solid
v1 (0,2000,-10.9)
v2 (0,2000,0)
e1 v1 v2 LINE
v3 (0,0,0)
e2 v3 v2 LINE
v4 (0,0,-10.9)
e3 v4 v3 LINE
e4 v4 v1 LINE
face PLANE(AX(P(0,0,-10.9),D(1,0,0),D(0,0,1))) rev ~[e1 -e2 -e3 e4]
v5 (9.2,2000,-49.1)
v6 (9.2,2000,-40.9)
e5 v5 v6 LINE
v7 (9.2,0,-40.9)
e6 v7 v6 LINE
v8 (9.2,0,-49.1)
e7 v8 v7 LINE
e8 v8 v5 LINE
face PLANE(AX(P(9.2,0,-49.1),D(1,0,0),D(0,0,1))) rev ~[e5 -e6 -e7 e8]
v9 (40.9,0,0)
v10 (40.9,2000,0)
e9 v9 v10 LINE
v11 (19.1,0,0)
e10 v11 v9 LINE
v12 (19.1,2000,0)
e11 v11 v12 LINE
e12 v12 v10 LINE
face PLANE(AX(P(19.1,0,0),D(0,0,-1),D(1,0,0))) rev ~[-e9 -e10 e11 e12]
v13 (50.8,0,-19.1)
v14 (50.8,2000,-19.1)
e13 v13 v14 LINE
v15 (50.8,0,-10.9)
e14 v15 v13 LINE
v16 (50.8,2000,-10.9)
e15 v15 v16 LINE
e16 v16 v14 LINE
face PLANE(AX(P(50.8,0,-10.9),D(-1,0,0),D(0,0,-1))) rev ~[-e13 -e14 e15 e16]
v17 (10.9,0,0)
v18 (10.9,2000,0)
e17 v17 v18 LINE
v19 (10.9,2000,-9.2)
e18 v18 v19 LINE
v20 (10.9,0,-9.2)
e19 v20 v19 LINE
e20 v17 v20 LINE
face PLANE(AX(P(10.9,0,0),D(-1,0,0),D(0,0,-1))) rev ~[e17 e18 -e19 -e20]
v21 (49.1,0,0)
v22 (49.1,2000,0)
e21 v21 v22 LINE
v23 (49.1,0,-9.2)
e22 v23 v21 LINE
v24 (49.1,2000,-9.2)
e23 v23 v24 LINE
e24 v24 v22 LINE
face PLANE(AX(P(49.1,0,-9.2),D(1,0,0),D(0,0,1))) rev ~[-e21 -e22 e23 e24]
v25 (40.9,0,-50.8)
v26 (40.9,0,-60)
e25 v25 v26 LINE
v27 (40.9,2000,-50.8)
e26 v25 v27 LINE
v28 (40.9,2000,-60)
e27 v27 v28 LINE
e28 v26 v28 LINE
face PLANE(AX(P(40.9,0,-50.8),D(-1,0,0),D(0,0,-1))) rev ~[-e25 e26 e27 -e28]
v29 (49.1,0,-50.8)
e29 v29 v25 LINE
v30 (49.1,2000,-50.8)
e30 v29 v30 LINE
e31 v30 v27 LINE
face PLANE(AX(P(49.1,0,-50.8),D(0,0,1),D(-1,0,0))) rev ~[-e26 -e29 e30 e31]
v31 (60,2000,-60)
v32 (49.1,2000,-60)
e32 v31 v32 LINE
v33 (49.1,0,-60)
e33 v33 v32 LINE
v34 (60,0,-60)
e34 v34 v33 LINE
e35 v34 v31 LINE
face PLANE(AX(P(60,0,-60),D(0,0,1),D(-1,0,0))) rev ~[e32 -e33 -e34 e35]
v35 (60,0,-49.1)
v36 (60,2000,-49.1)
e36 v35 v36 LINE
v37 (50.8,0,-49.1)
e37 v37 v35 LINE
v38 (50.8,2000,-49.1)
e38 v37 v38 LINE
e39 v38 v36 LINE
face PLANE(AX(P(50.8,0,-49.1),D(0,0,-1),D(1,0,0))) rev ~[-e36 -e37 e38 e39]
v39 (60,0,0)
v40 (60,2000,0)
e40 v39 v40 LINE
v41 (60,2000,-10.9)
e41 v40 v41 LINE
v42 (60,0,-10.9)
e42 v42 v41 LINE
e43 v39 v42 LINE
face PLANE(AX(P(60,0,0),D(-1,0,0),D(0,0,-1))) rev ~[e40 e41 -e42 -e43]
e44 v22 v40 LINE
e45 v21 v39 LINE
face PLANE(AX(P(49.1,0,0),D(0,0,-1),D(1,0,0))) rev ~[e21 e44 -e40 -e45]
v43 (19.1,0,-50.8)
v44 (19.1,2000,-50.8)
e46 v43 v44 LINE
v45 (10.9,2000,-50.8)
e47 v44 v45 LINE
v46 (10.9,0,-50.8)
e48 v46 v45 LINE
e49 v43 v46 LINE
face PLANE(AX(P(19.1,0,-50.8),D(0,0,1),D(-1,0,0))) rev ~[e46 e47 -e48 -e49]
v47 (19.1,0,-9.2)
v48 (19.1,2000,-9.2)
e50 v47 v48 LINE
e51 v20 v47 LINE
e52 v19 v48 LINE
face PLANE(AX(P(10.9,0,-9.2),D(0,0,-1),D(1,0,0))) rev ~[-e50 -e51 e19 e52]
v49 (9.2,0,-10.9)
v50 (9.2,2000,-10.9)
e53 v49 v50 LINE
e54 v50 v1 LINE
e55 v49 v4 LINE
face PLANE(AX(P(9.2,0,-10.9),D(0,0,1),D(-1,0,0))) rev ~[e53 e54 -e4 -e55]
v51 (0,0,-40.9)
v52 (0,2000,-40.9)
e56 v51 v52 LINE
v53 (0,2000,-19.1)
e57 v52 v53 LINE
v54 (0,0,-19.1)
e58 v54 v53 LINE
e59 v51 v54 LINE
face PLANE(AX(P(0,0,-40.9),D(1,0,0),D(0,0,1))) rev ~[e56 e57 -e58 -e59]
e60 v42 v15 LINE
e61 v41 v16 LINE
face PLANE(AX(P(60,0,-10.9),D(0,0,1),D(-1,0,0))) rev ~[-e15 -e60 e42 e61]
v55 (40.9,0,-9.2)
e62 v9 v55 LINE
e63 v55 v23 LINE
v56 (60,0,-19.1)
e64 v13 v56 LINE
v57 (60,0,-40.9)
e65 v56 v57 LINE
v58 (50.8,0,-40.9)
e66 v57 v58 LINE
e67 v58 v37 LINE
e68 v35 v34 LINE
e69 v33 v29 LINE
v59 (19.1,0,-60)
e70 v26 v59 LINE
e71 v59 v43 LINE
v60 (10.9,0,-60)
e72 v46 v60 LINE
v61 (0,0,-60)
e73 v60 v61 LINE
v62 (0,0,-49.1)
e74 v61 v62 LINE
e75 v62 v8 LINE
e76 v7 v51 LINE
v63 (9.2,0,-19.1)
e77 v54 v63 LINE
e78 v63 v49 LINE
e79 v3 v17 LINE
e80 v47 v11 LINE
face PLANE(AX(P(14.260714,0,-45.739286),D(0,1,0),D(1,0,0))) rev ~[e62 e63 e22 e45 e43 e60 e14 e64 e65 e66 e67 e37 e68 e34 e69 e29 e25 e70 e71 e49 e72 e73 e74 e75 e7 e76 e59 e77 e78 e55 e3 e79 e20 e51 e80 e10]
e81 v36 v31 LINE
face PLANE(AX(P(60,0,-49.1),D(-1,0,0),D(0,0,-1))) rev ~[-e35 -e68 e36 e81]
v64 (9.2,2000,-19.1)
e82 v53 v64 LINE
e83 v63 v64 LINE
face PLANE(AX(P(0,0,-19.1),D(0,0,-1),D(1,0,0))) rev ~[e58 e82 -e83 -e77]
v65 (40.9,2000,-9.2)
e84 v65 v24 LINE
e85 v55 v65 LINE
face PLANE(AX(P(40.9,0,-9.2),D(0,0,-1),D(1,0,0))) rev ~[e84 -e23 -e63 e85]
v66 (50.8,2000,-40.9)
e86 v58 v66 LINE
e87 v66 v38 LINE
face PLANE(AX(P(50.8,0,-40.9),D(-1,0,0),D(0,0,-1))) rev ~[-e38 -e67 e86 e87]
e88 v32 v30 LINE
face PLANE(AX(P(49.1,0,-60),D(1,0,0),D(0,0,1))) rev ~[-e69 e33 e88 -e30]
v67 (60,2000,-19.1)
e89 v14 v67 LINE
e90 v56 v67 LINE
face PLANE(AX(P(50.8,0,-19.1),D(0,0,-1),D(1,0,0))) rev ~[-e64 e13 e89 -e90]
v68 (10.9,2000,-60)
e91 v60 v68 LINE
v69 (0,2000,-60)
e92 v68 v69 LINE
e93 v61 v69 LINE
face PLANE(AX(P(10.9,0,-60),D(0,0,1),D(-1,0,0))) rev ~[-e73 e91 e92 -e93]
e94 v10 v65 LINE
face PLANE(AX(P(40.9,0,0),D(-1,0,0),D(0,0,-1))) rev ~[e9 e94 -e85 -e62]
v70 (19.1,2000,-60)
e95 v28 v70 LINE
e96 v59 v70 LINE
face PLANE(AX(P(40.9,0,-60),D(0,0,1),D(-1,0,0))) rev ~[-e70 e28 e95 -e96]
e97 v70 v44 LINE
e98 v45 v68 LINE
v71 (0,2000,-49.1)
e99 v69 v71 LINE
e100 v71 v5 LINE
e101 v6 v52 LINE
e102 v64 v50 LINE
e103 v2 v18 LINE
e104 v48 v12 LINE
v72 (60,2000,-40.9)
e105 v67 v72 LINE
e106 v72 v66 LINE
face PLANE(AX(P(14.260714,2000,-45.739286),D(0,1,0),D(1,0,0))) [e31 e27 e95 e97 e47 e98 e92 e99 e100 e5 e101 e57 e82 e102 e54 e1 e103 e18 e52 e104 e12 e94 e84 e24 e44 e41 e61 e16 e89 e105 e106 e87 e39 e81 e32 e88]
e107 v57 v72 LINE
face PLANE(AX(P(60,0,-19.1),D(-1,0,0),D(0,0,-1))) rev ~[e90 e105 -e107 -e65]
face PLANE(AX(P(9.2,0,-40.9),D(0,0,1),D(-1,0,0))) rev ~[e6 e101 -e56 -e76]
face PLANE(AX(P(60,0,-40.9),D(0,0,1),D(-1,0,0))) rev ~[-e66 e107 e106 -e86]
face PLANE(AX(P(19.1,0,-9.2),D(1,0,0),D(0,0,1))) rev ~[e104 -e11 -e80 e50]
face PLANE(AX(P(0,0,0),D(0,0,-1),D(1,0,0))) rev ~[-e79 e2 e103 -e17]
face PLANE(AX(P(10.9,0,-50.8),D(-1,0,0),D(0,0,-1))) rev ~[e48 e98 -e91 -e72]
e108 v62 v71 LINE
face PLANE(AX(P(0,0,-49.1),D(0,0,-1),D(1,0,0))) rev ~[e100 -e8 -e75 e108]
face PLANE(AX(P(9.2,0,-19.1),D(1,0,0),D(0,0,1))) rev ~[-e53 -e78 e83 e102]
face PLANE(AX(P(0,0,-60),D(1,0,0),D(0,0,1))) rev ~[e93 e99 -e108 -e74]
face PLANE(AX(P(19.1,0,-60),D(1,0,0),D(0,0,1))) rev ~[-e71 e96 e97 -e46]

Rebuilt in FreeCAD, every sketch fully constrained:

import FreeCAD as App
import Part
import Sketcher
from FreeCAD import Vector
Q = App.Units.Quantity


def add_polygon(sketch, points):
    """Adds a closed chain of lines whose ends are joined by coincident constraints."""
    first, n = sketch.GeometryCount, len(points)
    for a, b in zip(points, points[1:] + points[:1]):
        sketch.addGeometry(Part.LineSegment(App.Vector(*a, 0), App.Vector(*b, 0)), False)
    for i in range(n):
        sketch.addConstraint(Sketcher.Constraint("Coincident", first + i, 2, first + (i + 1) % n, 1))

doc = App.newDocument("Part")
body = doc.addObject("PartDesign::Body", "Body")

sketch1 = doc.addObject("Sketcher::SketchObject", "Sketch")
body.addObject(sketch1)
sketch1.AttachmentSupport = (doc.XZ_Plane, [""])
sketch1.MapMode = "FlatFace"
add_polygon(sketch1, [(11, -60), (0, -60), (0, -49), (9, -49), (9, -41), (0, -41), (0, -19), (9, -19), (9, -11), (0, -11), (0, 0), (11, 0), (11, -9), (19, -9), (19, 0), (41, 0), (41, -9), (49, -9), (49, 0), (60, 0), (60, -11), (51, -11), (51, -19), (60, -19), (60, -41), (51, -41), (51, -49), (60, -49), (60, -60), (49, -60), (49, -51), (41, -51), (41, -60), (19, -60), (19, -51), (11, -51)])
sketch1.addConstraint(Sketcher.Constraint("Horizontal", 0))
sketch1.addConstraint(Sketcher.Constraint("Vertical", 1))
sketch1.addConstraint(Sketcher.Constraint("Horizontal", 2))
sketch1.addConstraint(Sketcher.Constraint("Vertical", 3))
sketch1.addConstraint(Sketcher.Constraint("Horizontal", 4))
sketch1.addConstraint(Sketcher.Constraint("Vertical", 5))
sketch1.addConstraint(Sketcher.Constraint("Horizontal", 6))
sketch1.addConstraint(Sketcher.Constraint("Vertical", 7))
sketch1.addConstraint(Sketcher.Constraint("Horizontal", 8))
sketch1.addConstraint(Sketcher.Constraint("Vertical", 9))
sketch1.addConstraint(Sketcher.Constraint("Horizontal", 10))
sketch1.addConstraint(Sketcher.Constraint("Vertical", 11))
sketch1.addConstraint(Sketcher.Constraint("Horizontal", 12))
sketch1.addConstraint(Sketcher.Constraint("Vertical", 13))
sketch1.addConstraint(Sketcher.Constraint("Horizontal", 14))
sketch1.addConstraint(Sketcher.Constraint("Vertical", 15))
sketch1.addConstraint(Sketcher.Constraint("Horizontal", 16))
sketch1.addConstraint(Sketcher.Constraint("Vertical", 17))
sketch1.addConstraint(Sketcher.Constraint("Horizontal", 18))
sketch1.addConstraint(Sketcher.Constraint("Vertical", 19))
sketch1.addConstraint(Sketcher.Constraint("Horizontal", 20))
sketch1.addConstraint(Sketcher.Constraint("Vertical", 21))
sketch1.addConstraint(Sketcher.Constraint("Horizontal", 22))
sketch1.addConstraint(Sketcher.Constraint("Vertical", 23))
sketch1.addConstraint(Sketcher.Constraint("Horizontal", 24))
sketch1.addConstraint(Sketcher.Constraint("Vertical", 25))
sketch1.addConstraint(Sketcher.Constraint("Horizontal", 26))
sketch1.addConstraint(Sketcher.Constraint("Vertical", 27))
sketch1.addConstraint(Sketcher.Constraint("Horizontal", 28))
sketch1.addConstraint(Sketcher.Constraint("Vertical", 29))
sketch1.addConstraint(Sketcher.Constraint("Horizontal", 30))
sketch1.addConstraint(Sketcher.Constraint("Vertical", 31))
sketch1.addConstraint(Sketcher.Constraint("Horizontal", 32))
sketch1.addConstraint(Sketcher.Constraint("Vertical", 33))
sketch1.addConstraint(Sketcher.Constraint("Horizontal", 34))
sketch1.addConstraint(Sketcher.Constraint("Vertical", 35))
sketch1.addConstraint(Sketcher.Constraint("Coincident", 9, 2, -1, 1))
sketch1.addConstraint(Sketcher.Constraint("PointOnObject", 0, 2, -2))
sketch1.addConstraint(Sketcher.Constraint("PointOnObject", 4, 2, -2))
sketch1.addConstraint(Sketcher.Constraint("PointOnObject", 13, 2, -1))
sketch1.addConstraint(Sketcher.Constraint("PointOnObject", 17, 2, -1))
sketch1.addConstraint(Sketcher.Constraint("Horizontal", 12, 2, 15, 2))
sketch1.addConstraint(Sketcher.Constraint("Horizontal", 8, 2, 19, 2))
sketch1.addConstraint(Sketcher.Constraint("Horizontal", 6, 2, 21, 2))
sketch1.addConstraint(Sketcher.Constraint("Horizontal", 4, 2, 23, 2))
sketch1.addConstraint(Sketcher.Constraint("Horizontal", 2, 2, 25, 2))
sketch1.addConstraint(Sketcher.Constraint("Horizontal", 0, 2, 27, 2))
sketch1.addConstraint(Sketcher.Constraint("Horizontal", 28, 2, 31, 2))
sketch1.addConstraint(Sketcher.Constraint("Horizontal", 30, 2, 33, 2))
sketch1.addConstraint(Sketcher.Constraint("Vertical", 3, 2, 6, 2))
sketch1.addConstraint(Sketcher.Constraint("Vertical", 19, 2, 22, 2))
sketch1.addConstraint(Sketcher.Constraint("Vertical", 21, 2, 24, 2))
sketch1.addConstraint(Sketcher.Constraint("Vertical", 23, 2, 26, 2))
sketch1.addConstraint(Sketcher.Constraint("Vertical", 17, 2, 28, 2))
sketch1.addConstraint(Sketcher.Constraint("Vertical", 15, 2, 30, 2))
sketch1.addConstraint(Sketcher.Constraint("Vertical", 13, 2, 32, 2))
sketch1.addConstraint(Sketcher.Constraint("Vertical", 11, 2, 34, 2))
sketch1.addConstraint(Sketcher.Constraint("Equal", 12, 16))
sketch1.addConstraint(Sketcher.Constraint("Equal", 10, 18))
sketch1.addConstraint(Sketcher.Constraint("Equal", 8, 20))
sketch1.addConstraint(Sketcher.Constraint("Equal", 28, 1))
sketch1.addConstraint(Sketcher.Constraint("Equal", 34, 3))
sketch1.addConstraint(Sketcher.Constraint("Equal", 32, 5))
sketch1.addConstraint(Sketcher.Constraint("Equal", 3, 7))
sketch1.addConstraint(Sketcher.Constraint("Equal", 1, 9))
sketch1.addConstraint(Sketcher.Constraint("Equal", 26, 11))
sketch1.addConstraint(Sketcher.Constraint("Equal", 17, 29))
sketch1.addConstraint(Sketcher.Constraint("DistanceX", 0, 2, 0, 1, Q("10.9 mm")))
sketch1.addConstraint(Sketcher.Constraint("DistanceX", 2, 1, 2, 2, Q("9.2 mm")))
sketch1.addConstraint(Sketcher.Constraint("DistanceX", 12, 1, 12, 2, Q("8.2 mm")))
sketch1.addConstraint(Sketcher.Constraint("DistanceX", 14, 1, 14, 2, Q("21.8 mm")))
pad1 = doc.addObject("PartDesign::Pad", "Pad")
body.addObject(pad1)
pad1.Profile = sketch1
pad1.Length = 2000
pad1.Reversed = True

doc.recompute()
